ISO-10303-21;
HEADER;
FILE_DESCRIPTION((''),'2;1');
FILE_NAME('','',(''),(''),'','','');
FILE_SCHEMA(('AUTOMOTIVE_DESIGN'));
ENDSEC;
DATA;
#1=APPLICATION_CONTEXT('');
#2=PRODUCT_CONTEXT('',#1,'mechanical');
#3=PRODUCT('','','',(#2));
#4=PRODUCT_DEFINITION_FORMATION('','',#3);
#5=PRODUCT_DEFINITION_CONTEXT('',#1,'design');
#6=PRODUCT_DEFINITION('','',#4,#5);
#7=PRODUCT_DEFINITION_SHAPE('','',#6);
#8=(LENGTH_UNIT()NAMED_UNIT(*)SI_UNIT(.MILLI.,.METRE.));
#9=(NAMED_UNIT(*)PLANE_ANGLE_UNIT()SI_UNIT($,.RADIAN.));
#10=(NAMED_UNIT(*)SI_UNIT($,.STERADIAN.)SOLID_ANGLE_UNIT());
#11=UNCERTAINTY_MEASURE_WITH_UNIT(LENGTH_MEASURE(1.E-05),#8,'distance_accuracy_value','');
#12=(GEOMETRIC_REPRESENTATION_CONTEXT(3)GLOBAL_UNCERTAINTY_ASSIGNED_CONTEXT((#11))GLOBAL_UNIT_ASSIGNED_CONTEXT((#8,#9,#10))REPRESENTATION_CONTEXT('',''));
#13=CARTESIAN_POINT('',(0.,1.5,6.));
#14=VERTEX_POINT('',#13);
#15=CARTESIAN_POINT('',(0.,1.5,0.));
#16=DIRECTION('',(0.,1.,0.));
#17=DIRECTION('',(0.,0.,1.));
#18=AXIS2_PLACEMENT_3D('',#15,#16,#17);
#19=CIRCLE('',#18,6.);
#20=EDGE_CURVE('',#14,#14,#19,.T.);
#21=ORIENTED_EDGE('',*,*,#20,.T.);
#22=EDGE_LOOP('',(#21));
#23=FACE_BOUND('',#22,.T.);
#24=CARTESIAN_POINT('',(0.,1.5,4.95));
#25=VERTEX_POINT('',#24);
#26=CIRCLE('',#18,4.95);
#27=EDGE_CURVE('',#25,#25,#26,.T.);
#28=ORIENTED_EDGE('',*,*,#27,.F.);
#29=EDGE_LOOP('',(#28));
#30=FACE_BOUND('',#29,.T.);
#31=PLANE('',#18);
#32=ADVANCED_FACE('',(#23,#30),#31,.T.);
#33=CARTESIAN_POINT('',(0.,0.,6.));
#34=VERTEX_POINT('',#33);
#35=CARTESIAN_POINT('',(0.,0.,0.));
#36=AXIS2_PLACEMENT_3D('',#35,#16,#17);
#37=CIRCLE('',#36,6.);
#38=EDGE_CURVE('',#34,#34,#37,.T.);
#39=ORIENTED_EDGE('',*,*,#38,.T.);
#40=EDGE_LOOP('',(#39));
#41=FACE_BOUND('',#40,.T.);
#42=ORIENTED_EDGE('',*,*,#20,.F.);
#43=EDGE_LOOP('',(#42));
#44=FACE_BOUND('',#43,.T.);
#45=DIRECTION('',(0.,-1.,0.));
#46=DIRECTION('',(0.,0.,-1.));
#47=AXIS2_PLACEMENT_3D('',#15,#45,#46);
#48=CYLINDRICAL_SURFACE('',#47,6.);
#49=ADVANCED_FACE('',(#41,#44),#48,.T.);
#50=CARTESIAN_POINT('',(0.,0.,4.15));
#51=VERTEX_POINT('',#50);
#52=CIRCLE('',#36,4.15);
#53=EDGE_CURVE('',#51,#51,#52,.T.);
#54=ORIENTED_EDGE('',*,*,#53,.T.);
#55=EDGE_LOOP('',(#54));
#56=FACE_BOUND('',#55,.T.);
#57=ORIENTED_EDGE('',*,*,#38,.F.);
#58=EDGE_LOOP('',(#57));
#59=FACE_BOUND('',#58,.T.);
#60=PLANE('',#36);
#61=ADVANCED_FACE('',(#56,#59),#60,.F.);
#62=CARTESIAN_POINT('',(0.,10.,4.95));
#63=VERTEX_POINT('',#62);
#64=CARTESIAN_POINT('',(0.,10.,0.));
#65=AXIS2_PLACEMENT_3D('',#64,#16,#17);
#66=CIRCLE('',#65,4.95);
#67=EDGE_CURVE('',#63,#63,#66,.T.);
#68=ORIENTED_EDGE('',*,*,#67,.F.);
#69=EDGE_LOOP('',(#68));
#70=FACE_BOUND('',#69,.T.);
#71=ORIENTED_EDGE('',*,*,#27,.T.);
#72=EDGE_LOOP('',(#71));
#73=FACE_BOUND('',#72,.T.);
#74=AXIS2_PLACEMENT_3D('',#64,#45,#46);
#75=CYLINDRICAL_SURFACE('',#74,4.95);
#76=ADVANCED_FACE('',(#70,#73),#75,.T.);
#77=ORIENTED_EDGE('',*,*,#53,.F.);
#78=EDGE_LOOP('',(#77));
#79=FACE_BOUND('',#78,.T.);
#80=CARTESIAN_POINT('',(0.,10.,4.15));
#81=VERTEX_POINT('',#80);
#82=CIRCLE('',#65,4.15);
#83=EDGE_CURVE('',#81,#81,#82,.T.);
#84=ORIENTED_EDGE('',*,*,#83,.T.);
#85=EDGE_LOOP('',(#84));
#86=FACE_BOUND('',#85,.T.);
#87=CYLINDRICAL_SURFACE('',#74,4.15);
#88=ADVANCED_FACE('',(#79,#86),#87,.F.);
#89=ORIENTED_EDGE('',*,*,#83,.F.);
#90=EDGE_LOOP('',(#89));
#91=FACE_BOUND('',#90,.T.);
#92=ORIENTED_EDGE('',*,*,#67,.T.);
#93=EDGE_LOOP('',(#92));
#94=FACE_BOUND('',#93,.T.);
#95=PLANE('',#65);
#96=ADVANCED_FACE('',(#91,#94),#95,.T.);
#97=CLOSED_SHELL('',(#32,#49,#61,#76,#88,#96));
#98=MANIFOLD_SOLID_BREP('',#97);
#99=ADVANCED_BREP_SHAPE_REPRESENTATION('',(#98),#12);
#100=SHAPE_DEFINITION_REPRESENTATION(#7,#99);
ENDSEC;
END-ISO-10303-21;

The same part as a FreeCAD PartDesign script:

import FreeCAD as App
import Part
import Sketcher
from FreeCAD import Vector
Q = App.Units.Quantity

doc = App.newDocument("Part")
params = doc.addObject("Spreadsheet::Sheet", "Params")
for row, (alias, value) in enumerate([
    ("sketch1_diameter", "9.9 mm"),
    ("sketch1_diameter2", "8.3 mm"),
    ("pad1_length", "10 mm"),
    ("sketch2_diameter", "12 mm"),
    ("sketch2_diameter2", "9.9 mm"),
    ("pad2_length", "1.5 mm"),
], start=1):
    params.set(f"A{row}", alias)
    params.set(f"B{row}", "=" + value)
    params.setAlias(f"B{row}", alias)

body = doc.addObject("PartDesign::Body", "Body")

# Sketch on XZ plane
sketch1 = doc.addObject("Sketcher::SketchObject", "Sketch")
body.addObject(sketch1)
sketch1.AttachmentSupport = (doc.XZ_Plane, [""])
sketch1.MapMode = "FlatFace"
sketch1.addGeometry([
    Part.Circle(Vector(0, 0, 0), Vector(0, 0, 1), 5),
    Part.Circle(Vector(0, 0, 0), Vector(0, 0, 1), 4.2),
], False)
sketch1.addConstraint([
    Sketcher.Constraint("Coincident", 0, 3, -1, 1),
    Sketcher.Constraint("Coincident", 1, 3, -1, 1),
    Sketcher.Constraint("Diameter", 0, Q("9.9 mm")),
    Sketcher.Constraint("Diameter", 1, Q("8.3 mm")),
])
sketch1.setExpression("Constraints[2]", "Params.sketch1_diameter")
sketch1.setExpression("Constraints[3]", "Params.sketch1_diameter2")
pad1 = doc.addObject("PartDesign::Pad", "Pad")
body.addObject(pad1)
pad1.Profile = sketch1
pad1.setExpression("Length", "Params.pad1_length")
pad1.Reversed = True

# Sketch on XZ plane
sketch2 = doc.addObject("Sketcher::SketchObject", "Sketch001")
body.addObject(sketch2)
sketch2.AttachmentSupport = (doc.XZ_Plane, [""])
sketch2.MapMode = "FlatFace"
sketch2.addGeometry([
    Part.Circle(Vector(0, 0, 0), Vector(0, 0, 1), 6),
    Part.Circle(Vector(0, 0, 0), Vector(0, 0, 1), 5),
], False)
sketch2.addConstraint([
    Sketcher.Constraint("Coincident", 0, 3, -1, 1),
    Sketcher.Constraint("Coincident", 1, 3, -1, 1),
    Sketcher.Constraint("Diameter", 0, Q("12 mm")),
    Sketcher.Constraint("Diameter", 1, Q("9.9 mm")),
])
sketch2.setExpression("Constraints[2]", "Params.sketch2_diameter")
sketch2.setExpression("Constraints[3]", "Params.sketch2_diameter2")
pad2 = doc.addObject("PartDesign::Pad", "Pad001")
body.addObject(pad2)
pad2.Profile = sketch2
pad2.setExpression("Length", "Params.pad2_length")
pad2.Reversed = True

doc.recompute()
